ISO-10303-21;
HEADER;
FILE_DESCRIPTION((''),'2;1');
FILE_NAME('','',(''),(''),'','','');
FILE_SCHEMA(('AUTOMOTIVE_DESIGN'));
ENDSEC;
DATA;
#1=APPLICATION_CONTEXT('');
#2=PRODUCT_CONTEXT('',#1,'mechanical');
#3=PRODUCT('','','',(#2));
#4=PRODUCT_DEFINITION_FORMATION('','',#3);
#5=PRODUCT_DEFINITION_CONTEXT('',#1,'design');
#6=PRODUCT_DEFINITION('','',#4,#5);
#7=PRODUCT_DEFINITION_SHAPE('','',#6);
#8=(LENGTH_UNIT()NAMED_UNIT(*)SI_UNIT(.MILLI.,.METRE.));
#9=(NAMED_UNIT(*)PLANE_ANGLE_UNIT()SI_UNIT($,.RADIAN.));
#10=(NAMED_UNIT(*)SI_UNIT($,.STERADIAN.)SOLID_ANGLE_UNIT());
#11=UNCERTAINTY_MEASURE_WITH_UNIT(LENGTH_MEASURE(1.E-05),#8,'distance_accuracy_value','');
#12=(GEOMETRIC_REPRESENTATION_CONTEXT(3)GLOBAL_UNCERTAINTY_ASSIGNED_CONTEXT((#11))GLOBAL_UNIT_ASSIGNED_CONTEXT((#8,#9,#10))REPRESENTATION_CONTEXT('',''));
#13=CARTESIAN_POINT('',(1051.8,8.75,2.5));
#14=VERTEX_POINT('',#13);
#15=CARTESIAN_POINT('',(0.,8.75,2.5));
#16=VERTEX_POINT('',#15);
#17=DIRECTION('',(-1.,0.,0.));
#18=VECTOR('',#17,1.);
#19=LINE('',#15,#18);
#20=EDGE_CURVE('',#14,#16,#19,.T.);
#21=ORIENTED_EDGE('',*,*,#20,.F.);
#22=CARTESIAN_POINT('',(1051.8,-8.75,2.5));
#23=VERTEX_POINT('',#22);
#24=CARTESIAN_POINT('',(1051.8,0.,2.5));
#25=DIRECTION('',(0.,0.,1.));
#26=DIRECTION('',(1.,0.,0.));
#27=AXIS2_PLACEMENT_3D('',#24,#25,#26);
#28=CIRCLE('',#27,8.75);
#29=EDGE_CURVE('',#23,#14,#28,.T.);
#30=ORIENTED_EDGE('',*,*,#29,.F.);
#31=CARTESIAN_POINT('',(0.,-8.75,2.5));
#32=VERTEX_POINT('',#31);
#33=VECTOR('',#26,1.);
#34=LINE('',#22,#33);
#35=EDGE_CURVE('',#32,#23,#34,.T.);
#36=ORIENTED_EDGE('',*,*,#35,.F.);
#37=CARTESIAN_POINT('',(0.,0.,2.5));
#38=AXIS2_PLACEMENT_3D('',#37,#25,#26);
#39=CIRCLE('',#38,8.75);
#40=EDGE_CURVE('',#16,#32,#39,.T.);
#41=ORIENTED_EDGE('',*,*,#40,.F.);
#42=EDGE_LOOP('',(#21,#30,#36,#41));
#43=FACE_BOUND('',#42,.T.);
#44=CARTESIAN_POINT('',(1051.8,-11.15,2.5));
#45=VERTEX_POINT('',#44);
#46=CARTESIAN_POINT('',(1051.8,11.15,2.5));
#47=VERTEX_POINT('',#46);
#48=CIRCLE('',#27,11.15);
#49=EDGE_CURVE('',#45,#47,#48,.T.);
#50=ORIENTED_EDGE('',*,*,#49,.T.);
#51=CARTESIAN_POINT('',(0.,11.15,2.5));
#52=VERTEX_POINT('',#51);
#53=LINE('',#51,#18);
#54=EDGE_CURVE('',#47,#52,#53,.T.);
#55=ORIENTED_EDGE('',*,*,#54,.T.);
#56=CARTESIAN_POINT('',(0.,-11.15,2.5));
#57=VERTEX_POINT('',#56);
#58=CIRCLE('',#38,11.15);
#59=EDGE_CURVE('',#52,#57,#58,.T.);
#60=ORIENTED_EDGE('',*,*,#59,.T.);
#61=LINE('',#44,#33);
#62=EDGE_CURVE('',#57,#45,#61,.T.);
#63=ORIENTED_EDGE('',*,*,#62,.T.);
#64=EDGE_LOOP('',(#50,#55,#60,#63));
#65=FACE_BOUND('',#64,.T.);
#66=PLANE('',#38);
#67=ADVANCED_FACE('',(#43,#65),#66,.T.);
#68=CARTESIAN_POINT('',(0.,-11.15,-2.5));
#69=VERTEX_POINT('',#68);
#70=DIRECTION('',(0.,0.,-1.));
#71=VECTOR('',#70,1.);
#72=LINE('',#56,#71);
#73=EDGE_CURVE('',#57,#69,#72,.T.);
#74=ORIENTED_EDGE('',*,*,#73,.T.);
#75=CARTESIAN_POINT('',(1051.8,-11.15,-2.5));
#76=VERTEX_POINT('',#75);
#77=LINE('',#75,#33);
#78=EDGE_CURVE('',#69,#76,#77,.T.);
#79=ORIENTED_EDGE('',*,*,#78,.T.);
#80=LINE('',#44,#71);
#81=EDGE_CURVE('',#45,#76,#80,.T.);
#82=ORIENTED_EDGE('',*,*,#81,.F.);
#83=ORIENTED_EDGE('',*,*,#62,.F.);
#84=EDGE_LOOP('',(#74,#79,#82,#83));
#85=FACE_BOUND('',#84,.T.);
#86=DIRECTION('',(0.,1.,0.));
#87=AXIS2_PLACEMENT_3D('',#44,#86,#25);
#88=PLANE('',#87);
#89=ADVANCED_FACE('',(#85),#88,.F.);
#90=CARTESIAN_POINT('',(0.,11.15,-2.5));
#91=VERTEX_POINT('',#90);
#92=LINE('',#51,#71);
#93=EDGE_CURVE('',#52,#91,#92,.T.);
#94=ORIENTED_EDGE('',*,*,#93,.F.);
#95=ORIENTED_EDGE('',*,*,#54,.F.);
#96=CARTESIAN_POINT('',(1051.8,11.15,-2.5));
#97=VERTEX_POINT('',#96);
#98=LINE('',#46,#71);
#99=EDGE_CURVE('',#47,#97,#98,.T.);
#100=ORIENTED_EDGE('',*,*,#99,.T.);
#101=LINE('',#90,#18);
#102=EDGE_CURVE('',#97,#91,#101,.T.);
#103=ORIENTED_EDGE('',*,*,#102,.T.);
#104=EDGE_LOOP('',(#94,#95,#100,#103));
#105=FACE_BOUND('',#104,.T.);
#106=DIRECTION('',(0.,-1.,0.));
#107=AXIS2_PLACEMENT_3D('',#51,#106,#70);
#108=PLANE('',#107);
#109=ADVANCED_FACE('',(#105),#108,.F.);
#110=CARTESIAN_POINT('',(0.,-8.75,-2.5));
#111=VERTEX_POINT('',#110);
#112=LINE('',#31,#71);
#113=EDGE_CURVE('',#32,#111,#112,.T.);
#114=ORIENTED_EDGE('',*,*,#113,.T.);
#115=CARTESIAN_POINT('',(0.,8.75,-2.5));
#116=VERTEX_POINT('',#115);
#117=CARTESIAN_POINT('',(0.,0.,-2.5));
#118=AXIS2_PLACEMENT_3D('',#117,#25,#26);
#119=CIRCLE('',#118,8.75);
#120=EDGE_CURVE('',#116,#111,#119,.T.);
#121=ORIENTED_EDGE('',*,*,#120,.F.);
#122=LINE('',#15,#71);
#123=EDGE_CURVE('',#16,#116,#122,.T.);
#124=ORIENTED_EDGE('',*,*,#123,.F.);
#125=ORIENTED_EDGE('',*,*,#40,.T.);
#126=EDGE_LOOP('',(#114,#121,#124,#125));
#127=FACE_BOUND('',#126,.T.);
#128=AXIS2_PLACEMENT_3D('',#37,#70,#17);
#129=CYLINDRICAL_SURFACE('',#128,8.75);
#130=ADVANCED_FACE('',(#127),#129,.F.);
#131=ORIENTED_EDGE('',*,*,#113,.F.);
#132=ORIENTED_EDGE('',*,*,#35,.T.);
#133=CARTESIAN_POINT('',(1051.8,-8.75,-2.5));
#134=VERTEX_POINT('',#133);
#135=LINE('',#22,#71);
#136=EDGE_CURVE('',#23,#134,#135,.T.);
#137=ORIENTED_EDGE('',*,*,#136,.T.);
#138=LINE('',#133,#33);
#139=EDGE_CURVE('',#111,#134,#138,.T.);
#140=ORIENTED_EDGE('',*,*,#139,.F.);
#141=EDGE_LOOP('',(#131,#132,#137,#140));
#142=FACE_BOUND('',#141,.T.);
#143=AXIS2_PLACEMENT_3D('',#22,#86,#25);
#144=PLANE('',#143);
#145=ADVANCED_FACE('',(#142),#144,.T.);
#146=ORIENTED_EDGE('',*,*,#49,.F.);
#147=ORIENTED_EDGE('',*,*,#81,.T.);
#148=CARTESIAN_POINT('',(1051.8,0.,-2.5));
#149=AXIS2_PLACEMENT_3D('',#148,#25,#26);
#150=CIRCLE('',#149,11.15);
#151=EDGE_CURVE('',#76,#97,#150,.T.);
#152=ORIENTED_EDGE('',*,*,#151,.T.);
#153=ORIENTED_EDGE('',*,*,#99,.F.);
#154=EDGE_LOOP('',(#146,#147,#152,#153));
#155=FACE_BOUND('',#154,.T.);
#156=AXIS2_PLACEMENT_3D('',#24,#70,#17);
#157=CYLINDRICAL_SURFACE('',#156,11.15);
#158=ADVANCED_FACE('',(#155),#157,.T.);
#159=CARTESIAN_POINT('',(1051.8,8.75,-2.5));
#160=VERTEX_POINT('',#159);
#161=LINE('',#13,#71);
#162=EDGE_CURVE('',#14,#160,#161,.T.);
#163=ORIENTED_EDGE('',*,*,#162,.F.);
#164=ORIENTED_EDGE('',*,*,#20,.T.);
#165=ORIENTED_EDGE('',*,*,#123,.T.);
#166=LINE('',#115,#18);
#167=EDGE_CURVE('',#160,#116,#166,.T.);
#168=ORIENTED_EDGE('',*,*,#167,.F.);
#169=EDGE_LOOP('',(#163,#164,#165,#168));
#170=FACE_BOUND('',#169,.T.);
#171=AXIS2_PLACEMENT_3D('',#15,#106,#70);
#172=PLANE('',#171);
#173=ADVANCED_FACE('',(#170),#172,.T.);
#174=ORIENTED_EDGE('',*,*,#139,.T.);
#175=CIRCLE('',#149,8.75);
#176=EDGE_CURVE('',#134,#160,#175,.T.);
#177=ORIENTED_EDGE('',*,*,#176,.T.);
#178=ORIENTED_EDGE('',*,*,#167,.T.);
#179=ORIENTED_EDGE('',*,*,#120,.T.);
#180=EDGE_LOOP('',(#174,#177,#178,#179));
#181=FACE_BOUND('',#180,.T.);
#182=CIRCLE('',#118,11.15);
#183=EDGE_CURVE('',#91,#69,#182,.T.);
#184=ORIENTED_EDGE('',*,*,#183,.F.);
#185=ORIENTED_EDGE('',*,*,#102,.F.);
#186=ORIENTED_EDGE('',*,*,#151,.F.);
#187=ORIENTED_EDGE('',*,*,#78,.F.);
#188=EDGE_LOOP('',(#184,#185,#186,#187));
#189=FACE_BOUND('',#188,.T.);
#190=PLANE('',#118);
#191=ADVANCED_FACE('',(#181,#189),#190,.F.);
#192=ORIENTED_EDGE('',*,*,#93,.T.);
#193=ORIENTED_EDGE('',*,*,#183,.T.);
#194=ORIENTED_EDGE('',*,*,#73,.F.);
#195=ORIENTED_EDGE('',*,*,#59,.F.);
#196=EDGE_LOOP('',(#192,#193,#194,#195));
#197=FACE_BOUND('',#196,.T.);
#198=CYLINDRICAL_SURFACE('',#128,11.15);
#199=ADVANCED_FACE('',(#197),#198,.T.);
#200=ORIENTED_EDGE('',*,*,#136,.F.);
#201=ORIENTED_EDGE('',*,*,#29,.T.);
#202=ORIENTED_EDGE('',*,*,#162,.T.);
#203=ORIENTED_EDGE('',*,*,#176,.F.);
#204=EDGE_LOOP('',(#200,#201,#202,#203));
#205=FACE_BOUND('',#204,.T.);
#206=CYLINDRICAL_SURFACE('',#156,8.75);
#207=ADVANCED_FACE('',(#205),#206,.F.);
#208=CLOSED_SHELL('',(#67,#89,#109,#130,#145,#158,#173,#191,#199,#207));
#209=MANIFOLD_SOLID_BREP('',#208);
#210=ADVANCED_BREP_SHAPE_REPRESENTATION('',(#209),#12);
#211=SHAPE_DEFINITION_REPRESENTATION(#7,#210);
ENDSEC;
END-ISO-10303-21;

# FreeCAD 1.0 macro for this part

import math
import FreeCAD as App
import Part
import Sketcher

doc = App.newDocument("Part")
body = doc.addObject("PartDesign::Body", "Body")

# Sketch on XY plane
sketch1 = doc.addObject("Sketcher::SketchObject", "Sketch")
body.addObject(sketch1)
sketch1.AttachmentSupport = (doc.XY_Plane, [""])
sketch1.MapMode = "FlatFace"
sketch1.addGeometry([
    Part.LineSegment(App.Vector(0, -11, 0), App.Vector(1052, -11, 0)),  # 0
    Part.ArcOfCircle(Part.Circle(App.Vector(1052, 0, 0), App.Vector(0, 0, 1), 11), math.radians(-90), math.radians(90)),  # 1
    Part.LineSegment(App.Vector(1052, 11, 0), App.Vector(0, 11, 0)),  # 2
    Part.ArcOfCircle(Part.Circle(App.Vector(0, 0, 0), App.Vector(0, 0, 1), 11), math.radians(90), math.radians(270)),  # 3
    Part.LineSegment(App.Vector(1052, -9, 0), App.Vector(0, -9, 0)),  # 4
    Part.ArcOfCircle(Part.Circle(App.Vector(0, 0, 0), App.Vector(0, 0, 1), 9), math.radians(90), math.radians(270)),  # 5
    Part.LineSegment(App.Vector(0, 9, 0), App.Vector(1052, 9, 0)),  # 6
    Part.ArcOfCircle(Part.Circle(App.Vector(1052, 0, 0), App.Vector(0, 0, 1), 9), math.radians(-90), math.radians(90)),  # 7
], False)
sketch1.addConstraint([
    Sketcher.Constraint("Tangent", 0, 2, 1, 1),
    Sketcher.Constraint("Tangent", 1, 2, 2, 1),
    Sketcher.Constraint("Tangent", 2, 2, 3, 1),
    Sketcher.Constraint("Tangent", 3, 2, 0, 1),
    Sketcher.Constraint("Tangent", 4, 2, 5, 2),
    Sketcher.Constraint("Tangent", 5, 1, 6, 1),
    Sketcher.Constraint("Tangent", 6, 2, 7, 2),
    Sketcher.Constraint("Tangent", 7, 1, 4, 1),
    Sketcher.Constraint("Horizontal", 0),
    Sketcher.Constraint("Horizontal", 2),
    Sketcher.Constraint("Horizontal", 4),
    Sketcher.Constraint("Horizontal", 6),
    Sketcher.Constraint("Coincident", 3, 3, -1, 1),
    Sketcher.Constraint("Coincident", 5, 3, -1, 1),
    Sketcher.Constraint("Vertical", 7, 3, 0, 2),
    Sketcher.Constraint("Radius", 1, 11.15),
    Sketcher.Constraint("Radius", 5, 8.75),
    Sketcher.Constraint("DistanceX", 0, 1, 0, 2, 1051.8),
])
pad1 = doc.addObject("PartDesign::Pad", "Pad")
body.addObject(pad1)
pad1.Profile = sketch1
pad1.Length = 5
pad1.Midplane = True

doc.recompute()
